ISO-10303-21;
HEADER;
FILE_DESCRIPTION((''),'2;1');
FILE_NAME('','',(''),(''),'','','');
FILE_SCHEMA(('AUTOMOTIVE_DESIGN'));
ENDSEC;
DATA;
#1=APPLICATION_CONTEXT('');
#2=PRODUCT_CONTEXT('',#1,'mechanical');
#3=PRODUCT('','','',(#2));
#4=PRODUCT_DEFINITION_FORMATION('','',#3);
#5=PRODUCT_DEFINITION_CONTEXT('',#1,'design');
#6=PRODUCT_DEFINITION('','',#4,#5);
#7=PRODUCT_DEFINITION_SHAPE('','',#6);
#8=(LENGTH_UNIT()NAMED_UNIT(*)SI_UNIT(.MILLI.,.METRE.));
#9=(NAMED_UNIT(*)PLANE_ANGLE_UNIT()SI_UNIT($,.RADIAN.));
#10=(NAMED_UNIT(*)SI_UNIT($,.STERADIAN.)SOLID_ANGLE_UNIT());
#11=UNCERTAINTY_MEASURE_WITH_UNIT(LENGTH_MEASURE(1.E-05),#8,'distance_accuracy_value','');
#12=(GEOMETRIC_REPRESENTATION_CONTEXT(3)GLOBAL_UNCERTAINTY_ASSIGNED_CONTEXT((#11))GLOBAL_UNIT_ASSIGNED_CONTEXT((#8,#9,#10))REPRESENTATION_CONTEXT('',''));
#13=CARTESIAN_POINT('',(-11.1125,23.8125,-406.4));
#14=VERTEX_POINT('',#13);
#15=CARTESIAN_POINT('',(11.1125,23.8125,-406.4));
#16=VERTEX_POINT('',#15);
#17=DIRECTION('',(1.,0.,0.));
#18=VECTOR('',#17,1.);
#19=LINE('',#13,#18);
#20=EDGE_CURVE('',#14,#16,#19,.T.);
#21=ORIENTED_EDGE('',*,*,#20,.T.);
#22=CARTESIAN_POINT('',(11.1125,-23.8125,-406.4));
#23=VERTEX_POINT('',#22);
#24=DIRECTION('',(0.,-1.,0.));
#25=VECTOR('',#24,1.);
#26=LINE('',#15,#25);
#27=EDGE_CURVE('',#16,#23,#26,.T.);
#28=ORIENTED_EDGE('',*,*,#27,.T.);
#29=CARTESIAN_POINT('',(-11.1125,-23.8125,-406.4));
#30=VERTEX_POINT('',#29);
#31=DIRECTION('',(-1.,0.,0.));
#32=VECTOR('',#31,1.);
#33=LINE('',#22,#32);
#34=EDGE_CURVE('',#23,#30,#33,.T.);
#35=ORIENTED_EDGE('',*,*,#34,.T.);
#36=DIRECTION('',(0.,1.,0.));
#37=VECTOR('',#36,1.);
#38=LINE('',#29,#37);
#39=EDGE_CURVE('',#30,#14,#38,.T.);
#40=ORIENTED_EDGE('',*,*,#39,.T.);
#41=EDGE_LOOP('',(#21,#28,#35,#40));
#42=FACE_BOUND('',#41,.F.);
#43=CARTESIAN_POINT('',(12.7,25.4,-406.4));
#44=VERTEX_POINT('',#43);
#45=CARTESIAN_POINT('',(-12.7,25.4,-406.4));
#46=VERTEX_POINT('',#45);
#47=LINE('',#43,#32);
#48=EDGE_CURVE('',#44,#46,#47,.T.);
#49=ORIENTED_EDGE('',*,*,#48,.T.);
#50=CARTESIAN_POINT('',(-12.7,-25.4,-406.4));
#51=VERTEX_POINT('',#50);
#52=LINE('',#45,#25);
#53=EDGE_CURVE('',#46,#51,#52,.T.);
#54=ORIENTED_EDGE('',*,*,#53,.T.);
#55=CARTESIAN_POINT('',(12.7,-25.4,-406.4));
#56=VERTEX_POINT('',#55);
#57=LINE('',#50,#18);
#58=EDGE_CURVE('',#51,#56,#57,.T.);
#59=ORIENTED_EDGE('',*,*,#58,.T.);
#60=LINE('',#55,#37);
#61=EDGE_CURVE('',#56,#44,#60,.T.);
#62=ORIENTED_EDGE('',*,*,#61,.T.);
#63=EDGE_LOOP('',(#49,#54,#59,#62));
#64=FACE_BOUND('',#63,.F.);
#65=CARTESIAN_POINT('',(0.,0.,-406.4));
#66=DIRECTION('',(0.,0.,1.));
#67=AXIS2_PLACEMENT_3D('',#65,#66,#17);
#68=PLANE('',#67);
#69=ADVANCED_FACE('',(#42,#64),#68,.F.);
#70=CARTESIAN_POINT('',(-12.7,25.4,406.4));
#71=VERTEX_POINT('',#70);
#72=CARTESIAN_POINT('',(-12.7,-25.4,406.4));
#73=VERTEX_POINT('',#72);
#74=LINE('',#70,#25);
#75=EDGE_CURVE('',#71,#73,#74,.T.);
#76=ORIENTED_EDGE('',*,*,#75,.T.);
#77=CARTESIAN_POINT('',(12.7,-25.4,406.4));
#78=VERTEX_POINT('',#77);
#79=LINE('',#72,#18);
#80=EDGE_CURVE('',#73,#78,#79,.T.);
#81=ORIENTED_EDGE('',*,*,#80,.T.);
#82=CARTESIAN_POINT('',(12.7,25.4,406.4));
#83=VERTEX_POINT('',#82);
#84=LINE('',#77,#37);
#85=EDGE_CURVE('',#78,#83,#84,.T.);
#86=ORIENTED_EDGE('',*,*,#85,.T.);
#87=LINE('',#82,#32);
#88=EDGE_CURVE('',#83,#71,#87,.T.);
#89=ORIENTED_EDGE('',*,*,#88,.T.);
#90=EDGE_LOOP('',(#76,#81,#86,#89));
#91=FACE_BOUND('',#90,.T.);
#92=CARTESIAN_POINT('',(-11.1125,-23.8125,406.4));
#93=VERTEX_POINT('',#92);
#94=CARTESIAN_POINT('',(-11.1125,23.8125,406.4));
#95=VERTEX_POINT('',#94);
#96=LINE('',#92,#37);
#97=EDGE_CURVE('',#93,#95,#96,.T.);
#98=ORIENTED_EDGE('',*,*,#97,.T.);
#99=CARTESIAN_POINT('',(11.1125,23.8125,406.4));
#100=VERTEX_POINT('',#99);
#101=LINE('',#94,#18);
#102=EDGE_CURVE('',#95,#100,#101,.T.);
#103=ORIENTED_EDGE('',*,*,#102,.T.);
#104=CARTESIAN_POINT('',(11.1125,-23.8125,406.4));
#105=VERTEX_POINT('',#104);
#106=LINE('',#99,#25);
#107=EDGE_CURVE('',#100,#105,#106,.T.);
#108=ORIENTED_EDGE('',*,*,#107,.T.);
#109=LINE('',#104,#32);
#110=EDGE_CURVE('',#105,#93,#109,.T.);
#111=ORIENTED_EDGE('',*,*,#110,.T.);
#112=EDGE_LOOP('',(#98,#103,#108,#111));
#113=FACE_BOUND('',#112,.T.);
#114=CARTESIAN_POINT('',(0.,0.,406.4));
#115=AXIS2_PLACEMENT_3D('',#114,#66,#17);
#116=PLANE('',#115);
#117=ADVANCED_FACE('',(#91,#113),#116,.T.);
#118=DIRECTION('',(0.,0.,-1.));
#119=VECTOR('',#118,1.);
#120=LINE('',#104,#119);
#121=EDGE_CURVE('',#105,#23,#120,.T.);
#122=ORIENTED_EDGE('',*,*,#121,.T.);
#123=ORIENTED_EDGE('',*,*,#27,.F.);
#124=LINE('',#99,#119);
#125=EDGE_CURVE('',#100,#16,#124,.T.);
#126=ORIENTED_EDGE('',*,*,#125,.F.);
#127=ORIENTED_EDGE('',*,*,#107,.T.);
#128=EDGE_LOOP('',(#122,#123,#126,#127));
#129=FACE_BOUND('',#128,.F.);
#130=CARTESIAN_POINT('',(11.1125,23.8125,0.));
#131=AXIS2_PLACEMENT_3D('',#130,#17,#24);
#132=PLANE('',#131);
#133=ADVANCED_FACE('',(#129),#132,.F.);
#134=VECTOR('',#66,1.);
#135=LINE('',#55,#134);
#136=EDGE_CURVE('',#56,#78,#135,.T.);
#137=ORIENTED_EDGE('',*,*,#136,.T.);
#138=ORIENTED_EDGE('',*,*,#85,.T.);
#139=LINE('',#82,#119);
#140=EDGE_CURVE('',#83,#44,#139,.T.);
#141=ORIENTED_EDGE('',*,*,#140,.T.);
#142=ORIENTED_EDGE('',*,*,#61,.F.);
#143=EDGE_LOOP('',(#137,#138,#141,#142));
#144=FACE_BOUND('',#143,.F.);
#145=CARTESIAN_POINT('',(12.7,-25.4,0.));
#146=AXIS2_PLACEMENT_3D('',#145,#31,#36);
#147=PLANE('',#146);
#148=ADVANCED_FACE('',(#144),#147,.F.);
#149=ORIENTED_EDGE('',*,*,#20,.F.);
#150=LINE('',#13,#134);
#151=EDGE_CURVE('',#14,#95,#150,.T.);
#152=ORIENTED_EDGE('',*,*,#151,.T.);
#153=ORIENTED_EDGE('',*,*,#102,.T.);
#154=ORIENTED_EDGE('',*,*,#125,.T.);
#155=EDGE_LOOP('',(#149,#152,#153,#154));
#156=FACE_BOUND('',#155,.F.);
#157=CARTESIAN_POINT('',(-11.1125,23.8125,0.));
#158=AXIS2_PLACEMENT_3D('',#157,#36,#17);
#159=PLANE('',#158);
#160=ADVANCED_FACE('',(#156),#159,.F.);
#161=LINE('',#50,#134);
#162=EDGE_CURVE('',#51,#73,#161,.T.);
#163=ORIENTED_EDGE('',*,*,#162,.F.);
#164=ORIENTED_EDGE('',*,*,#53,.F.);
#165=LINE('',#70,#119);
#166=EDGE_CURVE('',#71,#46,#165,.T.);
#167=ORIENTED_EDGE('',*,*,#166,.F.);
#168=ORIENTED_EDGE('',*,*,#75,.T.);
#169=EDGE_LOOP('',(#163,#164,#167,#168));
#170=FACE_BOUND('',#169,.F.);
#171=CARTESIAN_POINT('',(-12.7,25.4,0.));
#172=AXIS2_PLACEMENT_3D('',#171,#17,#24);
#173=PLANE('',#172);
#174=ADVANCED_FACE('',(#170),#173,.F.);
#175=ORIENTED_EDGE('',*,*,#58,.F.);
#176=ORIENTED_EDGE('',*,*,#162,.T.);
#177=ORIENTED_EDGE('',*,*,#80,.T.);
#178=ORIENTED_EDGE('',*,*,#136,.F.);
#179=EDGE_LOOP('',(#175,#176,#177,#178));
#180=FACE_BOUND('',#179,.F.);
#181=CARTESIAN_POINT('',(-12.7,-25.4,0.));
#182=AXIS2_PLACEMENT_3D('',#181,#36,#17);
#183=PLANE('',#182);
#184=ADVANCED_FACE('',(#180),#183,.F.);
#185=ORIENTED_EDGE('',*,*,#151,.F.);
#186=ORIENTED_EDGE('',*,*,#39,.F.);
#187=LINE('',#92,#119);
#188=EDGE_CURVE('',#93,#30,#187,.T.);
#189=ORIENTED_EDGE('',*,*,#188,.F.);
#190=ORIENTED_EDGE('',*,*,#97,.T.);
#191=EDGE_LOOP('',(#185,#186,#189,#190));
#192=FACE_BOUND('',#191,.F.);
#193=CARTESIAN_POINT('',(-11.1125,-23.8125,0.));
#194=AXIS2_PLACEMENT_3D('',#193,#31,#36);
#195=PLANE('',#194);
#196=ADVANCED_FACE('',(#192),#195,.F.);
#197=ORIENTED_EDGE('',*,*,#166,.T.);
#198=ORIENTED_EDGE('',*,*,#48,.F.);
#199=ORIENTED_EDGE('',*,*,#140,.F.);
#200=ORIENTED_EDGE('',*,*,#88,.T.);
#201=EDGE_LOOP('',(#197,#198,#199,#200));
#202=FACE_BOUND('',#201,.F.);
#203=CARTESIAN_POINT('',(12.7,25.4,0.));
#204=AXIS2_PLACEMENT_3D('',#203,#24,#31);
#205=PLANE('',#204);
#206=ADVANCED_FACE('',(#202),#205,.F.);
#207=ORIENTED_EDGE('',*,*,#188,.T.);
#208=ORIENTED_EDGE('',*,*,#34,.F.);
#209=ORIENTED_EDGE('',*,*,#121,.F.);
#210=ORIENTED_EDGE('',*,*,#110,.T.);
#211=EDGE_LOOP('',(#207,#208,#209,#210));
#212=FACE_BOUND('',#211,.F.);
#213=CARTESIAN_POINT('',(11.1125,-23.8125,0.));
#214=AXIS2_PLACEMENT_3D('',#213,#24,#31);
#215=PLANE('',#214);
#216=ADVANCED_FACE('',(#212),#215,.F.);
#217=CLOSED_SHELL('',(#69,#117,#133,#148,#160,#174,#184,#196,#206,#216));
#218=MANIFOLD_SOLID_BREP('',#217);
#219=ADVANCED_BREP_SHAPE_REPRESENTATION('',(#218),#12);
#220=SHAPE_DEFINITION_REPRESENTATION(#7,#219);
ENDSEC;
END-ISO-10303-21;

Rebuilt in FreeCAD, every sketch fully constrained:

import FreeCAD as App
import Part
import Sketcher
from FreeCAD import Vector
Q = App.Units.Quantity


def add_polygon(sketch, points):
    """Adds a closed chain of lines whose ends are joined by coincident constraints."""
    first, n = sketch.GeometryCount, len(points)
    for a, b in zip(points, points[1:] + points[:1]):
        sketch.addGeometry(Part.LineSegment(App.Vector(*a, 0), App.Vector(*b, 0)), False)
    for i in range(n):
        sketch.addConstraint(Sketcher.Constraint("Coincident", first + i, 2, first + (i + 1) % n, 1))

doc = App.newDocument("Part")
body = doc.addObject("PartDesign::Body", "Body")

# Sketch on XY plane
sketch1 = body.newObject("Sketcher::SketchObject", "Sketch")
sketch1.AttachmentSupport = (doc.getObject("XY_Plane"), [""])
sketch1.MapMode = "FlatFace"
add_polygon(sketch1, [(-12.7, 25.4), (-12.7, -25.4), (12.7, -25.4), (12.7, 25.4)])  # lines 0-3
add_polygon(sketch1, [(-11.1125, -23.8125), (-11.1125, 23.8125), (11.1125, 23.8125), (11.1125, -23.8125)])  # lines 4-7
sketch1.addConstraint([
    Sketcher.Constraint("Vertical", 0),
    Sketcher.Constraint("Horizontal", 1),
    Sketcher.Constraint("Vertical", 2),
    Sketcher.Constraint("Horizontal", 3),
    Sketcher.Constraint("Vertical", 4),
    Sketcher.Constraint("Horizontal", 5),
    Sketcher.Constraint("Vertical", 6),
    Sketcher.Constraint("Horizontal", 7),
    Sketcher.Constraint("Symmetric", 0, 2, 2, 2, -1, 1),
    Sketcher.Constraint("Symmetric", 4, 2, 6, 2, -1, 1),
    Sketcher.Constraint("DistanceX", 1, 1, 1, 2, Q("1 in")),
    Sketcher.Constraint("DistanceY", 0, 2, 0, 1, Q("2 in")),
    Sketcher.Constraint("DistanceX", 3, 2, 4, 2, Q("0.0625 in")),
    Sketcher.Constraint("DistanceY", 4, 2, 3, 2, Q("0.0625 in")),
])
pad1 = body.newObject("PartDesign::Pad", "Pad")
pad1.Profile = sketch1
pad1.Length = Q("32 in")
pad1.Midplane = True

doc.recompute()
